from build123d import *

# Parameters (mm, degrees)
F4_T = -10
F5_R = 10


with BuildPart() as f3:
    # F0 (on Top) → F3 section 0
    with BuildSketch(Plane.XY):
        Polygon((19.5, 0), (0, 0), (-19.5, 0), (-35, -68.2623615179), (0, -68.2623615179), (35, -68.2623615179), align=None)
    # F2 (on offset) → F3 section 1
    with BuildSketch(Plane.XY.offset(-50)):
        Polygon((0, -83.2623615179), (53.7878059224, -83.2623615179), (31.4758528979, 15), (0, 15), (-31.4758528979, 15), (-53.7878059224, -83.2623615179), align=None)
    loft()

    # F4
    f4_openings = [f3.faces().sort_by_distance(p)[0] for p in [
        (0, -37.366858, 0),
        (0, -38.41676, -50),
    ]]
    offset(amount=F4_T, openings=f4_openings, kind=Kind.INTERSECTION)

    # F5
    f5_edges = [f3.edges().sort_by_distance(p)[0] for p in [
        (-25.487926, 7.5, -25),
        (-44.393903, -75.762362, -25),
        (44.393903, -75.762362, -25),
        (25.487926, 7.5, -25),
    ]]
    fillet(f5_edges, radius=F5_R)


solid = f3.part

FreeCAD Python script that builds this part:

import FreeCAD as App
import Part
import Sketcher

V = App.Vector


def edges_at(feature, points):
    """Names of the edges that pass closest to the given points."""
    edges = feature.Shape.Edges
    near = lambda p: min(range(len(edges)), key=lambda i: edges[i].distToShape(Part.Vertex(*p))[0])
    return sorted({f"Edge{near(p) + 1}" for p in points})


def faces_at(feature, points):
    """Names of the faces that lie closest to the given points."""
    faces = feature.Shape.Faces
    near = lambda p: min(range(len(faces)), key=lambda i: faces[i].distToShape(Part.Vertex(*p))[0])
    return sorted({f"Face{near(p) + 1}" for p in points})

doc = App.newDocument("Part")
body = doc.addObject("PartDesign::Body", "Body")

sketch1 = doc.addObject("Sketcher::SketchObject", "Sketch")
body.addObject(sketch1)
sketch1.AttachmentSupport = (doc.XY_Plane, [""])
sketch1.MapMode = "FlatFace"
sketch1.addGeometry([
    Part.LineSegment(V(20, 0, 0), V(-20, 0, 0)),
    Part.LineSegment(V(-20, 0, 0), V(-35, -68, 0)),
    Part.LineSegment(V(-35, -68, 0), V(35, -68, 0)),
    Part.LineSegment(V(35, -68, 0), V(20, 0, 0)),
], False)
sketch1.addConstraint([
    Sketcher.Constraint("Coincident", 0, 2, 1, 1),
    Sketcher.Constraint("Coincident", 1, 2, 2, 1),
    Sketcher.Constraint("Coincident", 2, 2, 3, 1),
    Sketcher.Constraint("Coincident", 3, 2, 0, 1),
    Sketcher.Constraint("Horizontal", 0),
    Sketcher.Constraint("Horizontal", 2),
    Sketcher.Constraint("Symmetric", 0, 2, 3, 2, -1, 1),
    Sketcher.Constraint("Equal", 1, 3),
    Sketcher.Constraint("DistanceX", 0, 2, 0, 1, 39.0),
    Sketcher.Constraint("DistanceX", 2, 1, 2, 2, 70.0),
    Sketcher.Constraint("Distance", 1, 70.0),
])

sketch2 = doc.addObject("Sketcher::SketchObject", "Sketch001")
body.addObject(sketch2)
sketch2.AttachmentSupport = (doc.XY_Plane, [""])
sketch2.MapMode = "FlatFace"
sketch2.AttachmentOffset = App.Placement(V(0, 0, -50), App.Rotation())
sketch2.addGeometry([
    Part.LineSegment(V(54, -83, 0), V(31, 15, 0)),
    Part.LineSegment(V(31, 15, 0), V(-31, 15, 0)),
    Part.LineSegment(V(-31, 15, 0), V(-54, -83, 0)),
    Part.LineSegment(V(-54, -83, 0), V(54, -83, 0)),
], False)
sketch2.addConstraint([
    Sketcher.Constraint("Coincident", 0, 2, 1, 1),
    Sketcher.Constraint("Coincident", 1, 2, 2, 1),
    Sketcher.Constraint("Coincident", 2, 2, 3, 1),
    Sketcher.Constraint("Coincident", 3, 2, 0, 1),
    Sketcher.Constraint("Horizontal", 1),
    Sketcher.Constraint("Horizontal", 3),
    Sketcher.Constraint("Equal", 0, 2),
    Sketcher.Constraint("DistanceY", -1, 1, 0, 2, 15.0),
    Sketcher.Constraint("DistanceX", 3, 1, 3, 2, 107.575612),
    Sketcher.Constraint("Distance", 0, 100.763659),
    Sketcher.Constraint("DistanceX", 1, 2, 1, 1, 62.951706),
    Sketcher.Constraint("DistanceX", -1, 1, 0, 2, 31.475853),
])

additiveloft = doc.addObject("PartDesign::AdditiveLoft", "AdditiveLoft")
body.addObject(additiveloft)
additiveloft.Profile = sketch1
additiveloft.Sections = [sketch2]
doc.recompute()

thickness = doc.addObject("PartDesign::Thickness", "Thickness")
body.addObject(thickness)
thickness.Base = (additiveloft, faces_at(additiveloft, [(1.716, -41.689, 0), (1.572, -45.176, -50)]))
thickness.Value = 10
thickness.Reversed = True
thickness.Join = "Intersection"
doc.recompute()

fillet = doc.addObject("PartDesign::Fillet", "Fillet")
body.addObject(fillet)
fillet.Base = (thickness, edges_at(thickness, [
    (-25.488, 7.5, -25),
    (-44.394, -75.762, -25),
    (44.394, -75.762, -25),
    (25.488, 7.5, -25),
]))
fillet.Radius = 10

doc.recompute()
